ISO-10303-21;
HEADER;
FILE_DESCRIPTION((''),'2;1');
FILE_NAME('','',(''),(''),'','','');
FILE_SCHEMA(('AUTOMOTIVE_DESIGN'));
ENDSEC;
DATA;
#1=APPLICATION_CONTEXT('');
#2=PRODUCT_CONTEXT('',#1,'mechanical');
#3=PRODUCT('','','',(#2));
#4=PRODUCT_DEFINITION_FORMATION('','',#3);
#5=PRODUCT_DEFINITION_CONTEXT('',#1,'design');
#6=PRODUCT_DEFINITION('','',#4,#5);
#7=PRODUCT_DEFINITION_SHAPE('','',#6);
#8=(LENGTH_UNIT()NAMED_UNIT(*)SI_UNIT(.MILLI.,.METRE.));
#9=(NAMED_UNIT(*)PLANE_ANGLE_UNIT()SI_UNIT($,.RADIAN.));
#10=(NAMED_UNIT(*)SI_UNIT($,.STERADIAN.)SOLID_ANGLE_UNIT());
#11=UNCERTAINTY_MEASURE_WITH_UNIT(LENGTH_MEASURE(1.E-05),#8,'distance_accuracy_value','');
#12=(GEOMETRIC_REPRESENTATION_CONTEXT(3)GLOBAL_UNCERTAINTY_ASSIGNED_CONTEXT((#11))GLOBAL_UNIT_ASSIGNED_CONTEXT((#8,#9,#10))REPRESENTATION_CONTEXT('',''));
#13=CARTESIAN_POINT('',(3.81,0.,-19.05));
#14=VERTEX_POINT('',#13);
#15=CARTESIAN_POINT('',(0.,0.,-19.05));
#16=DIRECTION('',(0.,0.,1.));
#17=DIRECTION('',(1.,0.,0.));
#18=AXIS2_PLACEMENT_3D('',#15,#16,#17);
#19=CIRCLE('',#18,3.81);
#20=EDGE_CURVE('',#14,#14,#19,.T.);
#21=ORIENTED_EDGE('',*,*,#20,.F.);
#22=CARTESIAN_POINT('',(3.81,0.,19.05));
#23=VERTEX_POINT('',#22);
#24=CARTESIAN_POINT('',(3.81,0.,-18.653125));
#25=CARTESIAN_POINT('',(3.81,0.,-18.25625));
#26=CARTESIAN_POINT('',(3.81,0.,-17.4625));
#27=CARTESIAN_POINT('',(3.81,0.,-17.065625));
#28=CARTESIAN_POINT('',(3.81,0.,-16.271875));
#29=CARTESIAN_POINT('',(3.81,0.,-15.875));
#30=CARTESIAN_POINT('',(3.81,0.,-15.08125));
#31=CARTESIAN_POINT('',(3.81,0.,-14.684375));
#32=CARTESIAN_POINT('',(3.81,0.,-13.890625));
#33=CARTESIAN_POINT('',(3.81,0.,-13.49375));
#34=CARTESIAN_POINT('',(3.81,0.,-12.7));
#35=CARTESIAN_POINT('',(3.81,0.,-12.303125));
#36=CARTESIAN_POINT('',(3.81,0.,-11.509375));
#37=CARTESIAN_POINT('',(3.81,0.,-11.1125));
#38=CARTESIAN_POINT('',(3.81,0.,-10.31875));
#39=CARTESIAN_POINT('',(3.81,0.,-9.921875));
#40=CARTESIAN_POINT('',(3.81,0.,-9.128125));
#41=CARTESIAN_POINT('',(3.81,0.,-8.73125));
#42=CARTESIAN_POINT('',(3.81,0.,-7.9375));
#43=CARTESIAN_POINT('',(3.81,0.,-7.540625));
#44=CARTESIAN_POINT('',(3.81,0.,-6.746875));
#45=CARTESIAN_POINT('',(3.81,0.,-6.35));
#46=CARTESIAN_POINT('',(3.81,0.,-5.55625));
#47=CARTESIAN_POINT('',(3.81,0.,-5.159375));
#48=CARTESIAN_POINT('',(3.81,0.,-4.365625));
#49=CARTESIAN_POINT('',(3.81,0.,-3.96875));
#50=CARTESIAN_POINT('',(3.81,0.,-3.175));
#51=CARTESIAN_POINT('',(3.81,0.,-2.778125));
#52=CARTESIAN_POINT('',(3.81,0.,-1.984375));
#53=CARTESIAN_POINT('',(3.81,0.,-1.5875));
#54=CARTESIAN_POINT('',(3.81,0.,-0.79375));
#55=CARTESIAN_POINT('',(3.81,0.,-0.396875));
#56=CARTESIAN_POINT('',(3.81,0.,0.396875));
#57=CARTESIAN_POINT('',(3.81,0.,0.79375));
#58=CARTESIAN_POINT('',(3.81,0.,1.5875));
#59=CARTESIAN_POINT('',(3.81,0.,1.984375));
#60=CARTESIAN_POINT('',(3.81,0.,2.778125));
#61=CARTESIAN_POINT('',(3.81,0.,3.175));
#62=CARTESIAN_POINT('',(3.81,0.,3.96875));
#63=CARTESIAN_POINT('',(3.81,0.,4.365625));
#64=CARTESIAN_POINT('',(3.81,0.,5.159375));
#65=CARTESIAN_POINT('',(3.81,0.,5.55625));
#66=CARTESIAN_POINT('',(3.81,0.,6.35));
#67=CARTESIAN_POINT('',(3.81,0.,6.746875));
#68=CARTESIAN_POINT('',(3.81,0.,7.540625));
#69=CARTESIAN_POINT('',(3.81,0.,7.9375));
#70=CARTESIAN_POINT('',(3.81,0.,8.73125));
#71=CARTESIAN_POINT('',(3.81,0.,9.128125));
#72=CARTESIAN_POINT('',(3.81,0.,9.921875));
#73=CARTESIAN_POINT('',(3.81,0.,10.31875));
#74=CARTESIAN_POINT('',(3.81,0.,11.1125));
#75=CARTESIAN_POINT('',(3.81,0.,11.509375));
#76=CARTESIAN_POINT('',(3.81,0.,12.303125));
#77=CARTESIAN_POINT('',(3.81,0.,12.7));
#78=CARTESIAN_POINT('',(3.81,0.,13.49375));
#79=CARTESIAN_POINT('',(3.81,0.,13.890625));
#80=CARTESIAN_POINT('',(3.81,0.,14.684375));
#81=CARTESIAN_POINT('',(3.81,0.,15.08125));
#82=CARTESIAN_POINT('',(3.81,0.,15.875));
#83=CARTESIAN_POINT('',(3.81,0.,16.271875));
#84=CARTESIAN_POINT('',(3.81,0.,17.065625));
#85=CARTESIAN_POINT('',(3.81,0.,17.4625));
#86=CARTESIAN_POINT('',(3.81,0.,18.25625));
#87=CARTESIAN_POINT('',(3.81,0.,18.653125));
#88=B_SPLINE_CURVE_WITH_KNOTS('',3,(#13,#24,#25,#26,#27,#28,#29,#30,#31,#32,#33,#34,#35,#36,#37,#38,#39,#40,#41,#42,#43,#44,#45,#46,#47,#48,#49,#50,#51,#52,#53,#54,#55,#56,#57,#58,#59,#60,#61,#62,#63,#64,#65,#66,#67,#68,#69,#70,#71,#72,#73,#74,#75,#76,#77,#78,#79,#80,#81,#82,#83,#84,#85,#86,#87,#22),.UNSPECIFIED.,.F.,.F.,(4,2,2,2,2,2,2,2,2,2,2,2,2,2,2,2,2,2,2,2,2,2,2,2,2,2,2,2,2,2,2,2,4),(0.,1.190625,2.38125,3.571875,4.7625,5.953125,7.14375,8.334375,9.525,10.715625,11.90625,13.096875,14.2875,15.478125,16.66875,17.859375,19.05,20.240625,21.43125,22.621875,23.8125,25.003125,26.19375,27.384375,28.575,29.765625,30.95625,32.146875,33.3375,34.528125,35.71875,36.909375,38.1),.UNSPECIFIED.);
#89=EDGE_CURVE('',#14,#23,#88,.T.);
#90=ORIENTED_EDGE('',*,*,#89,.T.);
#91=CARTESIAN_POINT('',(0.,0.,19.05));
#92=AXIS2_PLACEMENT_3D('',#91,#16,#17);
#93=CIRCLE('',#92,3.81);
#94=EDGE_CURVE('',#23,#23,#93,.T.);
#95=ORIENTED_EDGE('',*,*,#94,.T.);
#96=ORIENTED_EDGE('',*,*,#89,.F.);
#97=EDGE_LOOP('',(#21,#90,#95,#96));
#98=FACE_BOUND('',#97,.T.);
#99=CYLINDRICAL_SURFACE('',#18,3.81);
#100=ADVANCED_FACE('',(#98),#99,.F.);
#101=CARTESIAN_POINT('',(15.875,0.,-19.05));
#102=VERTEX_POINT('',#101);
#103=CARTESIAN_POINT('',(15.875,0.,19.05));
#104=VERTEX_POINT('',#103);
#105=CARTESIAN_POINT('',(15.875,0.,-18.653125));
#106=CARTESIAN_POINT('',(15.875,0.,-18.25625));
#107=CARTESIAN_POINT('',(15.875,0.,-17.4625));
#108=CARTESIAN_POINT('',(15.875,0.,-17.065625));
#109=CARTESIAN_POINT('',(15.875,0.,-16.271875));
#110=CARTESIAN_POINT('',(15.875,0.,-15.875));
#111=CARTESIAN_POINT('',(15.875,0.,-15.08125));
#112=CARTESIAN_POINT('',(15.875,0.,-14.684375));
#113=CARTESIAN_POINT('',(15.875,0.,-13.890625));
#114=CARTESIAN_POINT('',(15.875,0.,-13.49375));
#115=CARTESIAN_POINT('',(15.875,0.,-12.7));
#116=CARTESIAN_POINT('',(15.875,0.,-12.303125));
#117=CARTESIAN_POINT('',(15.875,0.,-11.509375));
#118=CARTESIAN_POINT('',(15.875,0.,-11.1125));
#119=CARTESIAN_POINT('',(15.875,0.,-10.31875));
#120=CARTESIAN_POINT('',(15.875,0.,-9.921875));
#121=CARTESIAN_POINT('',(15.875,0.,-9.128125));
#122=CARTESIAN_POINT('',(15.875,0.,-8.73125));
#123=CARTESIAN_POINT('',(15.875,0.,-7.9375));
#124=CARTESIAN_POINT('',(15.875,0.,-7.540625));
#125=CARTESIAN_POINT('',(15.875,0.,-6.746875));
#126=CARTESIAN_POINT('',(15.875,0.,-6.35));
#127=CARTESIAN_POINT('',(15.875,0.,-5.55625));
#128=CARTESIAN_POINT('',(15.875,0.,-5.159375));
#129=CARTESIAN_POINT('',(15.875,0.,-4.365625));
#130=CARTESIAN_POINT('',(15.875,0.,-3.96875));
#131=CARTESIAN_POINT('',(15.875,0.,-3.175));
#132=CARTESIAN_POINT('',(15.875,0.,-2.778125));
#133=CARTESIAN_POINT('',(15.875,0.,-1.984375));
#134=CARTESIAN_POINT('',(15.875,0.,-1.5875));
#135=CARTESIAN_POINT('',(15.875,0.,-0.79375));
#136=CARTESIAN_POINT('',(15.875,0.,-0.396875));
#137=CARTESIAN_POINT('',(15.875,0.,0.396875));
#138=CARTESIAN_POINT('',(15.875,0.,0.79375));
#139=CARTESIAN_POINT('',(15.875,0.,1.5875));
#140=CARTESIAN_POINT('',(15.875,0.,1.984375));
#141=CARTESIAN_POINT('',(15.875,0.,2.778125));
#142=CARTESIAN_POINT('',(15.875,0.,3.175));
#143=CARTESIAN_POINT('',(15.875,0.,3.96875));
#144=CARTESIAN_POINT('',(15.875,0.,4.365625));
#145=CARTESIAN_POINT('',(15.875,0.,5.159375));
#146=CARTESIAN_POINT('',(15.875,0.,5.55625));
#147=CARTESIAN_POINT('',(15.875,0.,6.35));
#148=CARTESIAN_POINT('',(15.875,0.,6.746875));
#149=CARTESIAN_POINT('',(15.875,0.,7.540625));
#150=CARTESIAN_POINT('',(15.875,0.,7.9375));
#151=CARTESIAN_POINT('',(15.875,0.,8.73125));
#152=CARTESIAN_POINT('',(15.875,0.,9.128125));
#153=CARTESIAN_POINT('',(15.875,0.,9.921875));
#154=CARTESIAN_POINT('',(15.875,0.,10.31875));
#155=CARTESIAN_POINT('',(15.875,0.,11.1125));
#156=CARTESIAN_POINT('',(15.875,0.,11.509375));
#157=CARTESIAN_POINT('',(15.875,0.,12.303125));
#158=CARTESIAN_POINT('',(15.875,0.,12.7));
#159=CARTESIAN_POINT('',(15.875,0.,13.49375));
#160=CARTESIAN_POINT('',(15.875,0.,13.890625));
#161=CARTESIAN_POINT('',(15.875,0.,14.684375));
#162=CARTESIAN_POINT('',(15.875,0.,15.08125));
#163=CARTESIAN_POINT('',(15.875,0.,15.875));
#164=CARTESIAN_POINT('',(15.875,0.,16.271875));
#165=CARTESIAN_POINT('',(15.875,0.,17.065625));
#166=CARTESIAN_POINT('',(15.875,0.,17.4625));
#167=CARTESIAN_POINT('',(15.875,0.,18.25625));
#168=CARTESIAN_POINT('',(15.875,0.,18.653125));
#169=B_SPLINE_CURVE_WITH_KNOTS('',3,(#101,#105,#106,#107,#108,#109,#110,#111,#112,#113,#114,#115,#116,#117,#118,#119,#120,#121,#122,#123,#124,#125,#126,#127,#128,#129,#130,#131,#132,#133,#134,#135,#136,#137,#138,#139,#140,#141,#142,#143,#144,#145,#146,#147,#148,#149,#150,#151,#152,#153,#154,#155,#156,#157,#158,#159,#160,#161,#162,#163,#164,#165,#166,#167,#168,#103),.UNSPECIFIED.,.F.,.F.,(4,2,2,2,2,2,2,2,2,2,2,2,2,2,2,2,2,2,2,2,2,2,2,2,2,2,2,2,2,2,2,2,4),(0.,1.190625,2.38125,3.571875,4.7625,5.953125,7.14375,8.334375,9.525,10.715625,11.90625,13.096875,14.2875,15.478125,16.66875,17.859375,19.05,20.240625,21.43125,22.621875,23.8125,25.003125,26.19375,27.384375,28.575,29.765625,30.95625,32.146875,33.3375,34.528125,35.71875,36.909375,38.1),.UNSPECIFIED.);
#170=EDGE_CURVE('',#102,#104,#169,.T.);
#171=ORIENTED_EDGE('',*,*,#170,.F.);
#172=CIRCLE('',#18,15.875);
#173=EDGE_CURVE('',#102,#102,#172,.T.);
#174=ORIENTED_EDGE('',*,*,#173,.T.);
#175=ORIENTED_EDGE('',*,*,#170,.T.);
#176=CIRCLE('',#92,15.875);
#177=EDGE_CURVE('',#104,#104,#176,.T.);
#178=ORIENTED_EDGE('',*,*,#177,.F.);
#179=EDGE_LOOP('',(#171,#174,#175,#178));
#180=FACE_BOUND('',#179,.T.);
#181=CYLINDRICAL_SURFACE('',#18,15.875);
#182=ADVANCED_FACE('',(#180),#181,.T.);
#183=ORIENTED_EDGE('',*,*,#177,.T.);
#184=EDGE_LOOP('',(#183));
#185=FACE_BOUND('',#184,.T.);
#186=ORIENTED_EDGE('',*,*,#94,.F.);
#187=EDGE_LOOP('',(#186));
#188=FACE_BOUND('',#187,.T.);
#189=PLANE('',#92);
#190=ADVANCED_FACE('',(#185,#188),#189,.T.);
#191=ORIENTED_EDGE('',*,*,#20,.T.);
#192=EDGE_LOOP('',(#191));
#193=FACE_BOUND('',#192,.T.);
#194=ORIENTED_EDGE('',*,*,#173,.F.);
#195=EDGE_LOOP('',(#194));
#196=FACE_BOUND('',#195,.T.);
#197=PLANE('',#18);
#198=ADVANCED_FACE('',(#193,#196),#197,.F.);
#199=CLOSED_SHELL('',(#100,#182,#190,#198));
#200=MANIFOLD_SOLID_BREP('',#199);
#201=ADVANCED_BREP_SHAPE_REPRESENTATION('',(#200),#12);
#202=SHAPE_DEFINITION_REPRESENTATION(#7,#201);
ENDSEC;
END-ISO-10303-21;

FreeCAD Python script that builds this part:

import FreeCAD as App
import Part
import Sketcher
from FreeCAD import Vector
Q = App.Units.Quantity

doc = App.newDocument("Part")
params = doc.addObject("Spreadsheet::Sheet", "Params")
for row, (alias, value) in enumerate([
    ("sketch1_diameter", "0.3 in"),
    ("sketch1_diameter2", "1.25 in"),
    ("pad1_length", "0.75 in"),
    ("pad1_length2", "0.75 in"),
], start=1):
    params.set(f"A{row}", alias)
    params.set(f"B{row}", "=" + value)
    params.setAlias(f"B{row}", alias)

body = doc.addObject("PartDesign::Body", "Body")

# Sketch on XY plane
sketch1 = doc.addObject("Sketcher::SketchObject", "Sketch")
body.addObject(sketch1)
sketch1.AttachmentSupport = (doc.XY_Plane, [""])
sketch1.MapMode = "FlatFace"
sketch1.addGeometry([
    Part.Circle(Vector(0, 0, 0), Vector(0, 0, 1), 15.875),
    Part.Circle(Vector(0, 0, 0), Vector(0, 0, 1), 3.81),
], False)
sketch1.addConstraint([
    Sketcher.Constraint("Coincident", 0, 3, -1, 1),
    Sketcher.Constraint("Coincident", 1, 3, -1, 1),
    Sketcher.Constraint("Diameter", 1, Q("0.3 in")),
    Sketcher.Constraint("Diameter", 0, Q("1.25 in")),
])
sketch1.setExpression("Constraints[2]", "Params.sketch1_diameter")
sketch1.setExpression("Constraints[3]", "Params.sketch1_diameter2")
pad1 = doc.addObject("PartDesign::Pad", "Pad")
body.addObject(pad1)
pad1.Profile = sketch1
pad1.Type = "TwoLengths"
pad1.setExpression("Length", "Params.pad1_length")
pad1.setExpression("Length2", "Params.pad1_length2")

doc.recompute()
